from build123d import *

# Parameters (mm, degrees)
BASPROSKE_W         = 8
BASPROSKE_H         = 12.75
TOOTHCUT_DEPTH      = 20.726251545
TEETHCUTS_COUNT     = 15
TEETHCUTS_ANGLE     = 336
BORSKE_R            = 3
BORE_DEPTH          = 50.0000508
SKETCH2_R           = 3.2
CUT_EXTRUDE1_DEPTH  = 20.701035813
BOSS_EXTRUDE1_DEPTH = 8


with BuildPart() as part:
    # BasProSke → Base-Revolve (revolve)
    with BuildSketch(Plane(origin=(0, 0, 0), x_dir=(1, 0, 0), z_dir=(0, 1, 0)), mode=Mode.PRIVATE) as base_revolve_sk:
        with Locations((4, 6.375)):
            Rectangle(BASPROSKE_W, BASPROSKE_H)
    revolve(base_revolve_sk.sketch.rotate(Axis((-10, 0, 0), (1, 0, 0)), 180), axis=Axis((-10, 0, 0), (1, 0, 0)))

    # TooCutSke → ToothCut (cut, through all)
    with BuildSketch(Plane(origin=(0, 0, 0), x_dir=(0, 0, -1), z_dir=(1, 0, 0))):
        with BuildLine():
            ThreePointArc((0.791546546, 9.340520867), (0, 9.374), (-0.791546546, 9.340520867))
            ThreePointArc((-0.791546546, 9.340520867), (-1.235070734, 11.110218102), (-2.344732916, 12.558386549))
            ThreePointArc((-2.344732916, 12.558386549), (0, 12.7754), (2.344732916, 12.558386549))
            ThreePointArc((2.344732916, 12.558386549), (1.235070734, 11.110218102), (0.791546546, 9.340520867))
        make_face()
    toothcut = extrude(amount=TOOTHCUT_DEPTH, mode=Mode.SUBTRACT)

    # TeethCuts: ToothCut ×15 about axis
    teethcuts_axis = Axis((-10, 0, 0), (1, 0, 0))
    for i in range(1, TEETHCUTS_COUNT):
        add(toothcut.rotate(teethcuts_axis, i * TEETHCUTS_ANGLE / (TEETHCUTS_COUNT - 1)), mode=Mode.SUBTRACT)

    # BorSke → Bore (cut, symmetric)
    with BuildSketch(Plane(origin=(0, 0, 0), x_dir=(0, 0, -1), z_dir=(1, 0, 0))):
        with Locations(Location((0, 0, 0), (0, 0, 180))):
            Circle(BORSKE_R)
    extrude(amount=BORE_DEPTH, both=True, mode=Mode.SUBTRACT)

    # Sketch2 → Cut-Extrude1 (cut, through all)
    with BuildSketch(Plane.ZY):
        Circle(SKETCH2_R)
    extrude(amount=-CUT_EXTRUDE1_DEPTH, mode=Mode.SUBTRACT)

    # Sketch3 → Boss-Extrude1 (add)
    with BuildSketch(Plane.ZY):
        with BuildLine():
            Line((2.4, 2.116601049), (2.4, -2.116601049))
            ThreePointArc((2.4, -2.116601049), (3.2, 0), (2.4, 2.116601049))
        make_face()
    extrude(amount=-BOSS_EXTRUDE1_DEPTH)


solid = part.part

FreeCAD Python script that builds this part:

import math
import FreeCAD as App
import Part
import Sketcher

doc = App.newDocument("Part")
body = doc.addObject("PartDesign::Body", "Body")

# Sketch on XZ plane
sketch1 = body.newObject("Sketcher::SketchObject", "Sketch")
sketch1.AttachmentSupport = (doc.getObject("XZ_Plane"), [""])
sketch1.MapMode = "FlatFace"
sketch1.addGeometry([
    Part.LineSegment(App.Vector(0, -12.75, 0), App.Vector(0, 0, 0)),
    Part.LineSegment(App.Vector(0, 0, 0), App.Vector(8, 0, 0)),
    Part.LineSegment(App.Vector(8, 0, 0), App.Vector(8, -12.75, 0)),
    Part.LineSegment(App.Vector(8, -12.75, 0), App.Vector(0, -12.75, 0)),
], False)
sketch1.addConstraint([
    Sketcher.Constraint("Coincident", 0, 2, 1, 1),
    Sketcher.Constraint("Coincident", 1, 2, 2, 1),
    Sketcher.Constraint("Coincident", 2, 2, 3, 1),
    Sketcher.Constraint("Coincident", 3, 2, 0, 1),
    Sketcher.Constraint("Vertical", 0),
    Sketcher.Constraint("Horizontal", 1),
    Sketcher.Constraint("Vertical", 2),
    Sketcher.Constraint("Horizontal", 3),
    Sketcher.Constraint("Coincident", 0, 2, -1, 1),
    Sketcher.Constraint("DistanceX", 1, 1, 1, 2, 8.0),
    Sketcher.Constraint("DistanceY", 0, 1, 0, 2, 12.75),
])
revolution = body.newObject("PartDesign::Revolution", "Revolution")
revolution.Profile = sketch1
revolution.ReferenceAxis = (sketch1, ["H_Axis"])
revolution.Angle = 360

# Sketch on YZ plane
sketch2 = body.newObject("Sketcher::SketchObject", "Sketch001")
sketch2.AttachmentSupport = (doc.getObject("YZ_Plane"), [""])
sketch2.MapMode = "FlatFace"
sketch2.addGeometry([
    Part.ArcOfCircle(Part.Circle(App.Vector(0, 0, 0), App.Vector(0, 0, 1), 9.374), math.radians(-4.84386), math.radians(4.84386)),
    Part.ArcOfCircle(Part.Circle(App.Vector(9.154119, -5.287684, 0), App.Vector(0, 0, 1), 4.5), math.radians(40.843049), math.radians(87.625979)),
    Part.ArcOfCircle(Part.Circle(App.Vector(0, 0, 0), App.Vector(0, 0, 1), 12.7754), math.radians(-10.575731), math.radians(10.575731)),
    Part.ArcOfCircle(Part.Circle(App.Vector(9.154119, 5.287684, 0), App.Vector(0, 0, 1), 4.5), math.radians(-87.625979), math.radians(-40.843049)),
], False)
sketch2.addConstraint([
    Sketcher.Constraint("Coincident", 0, 1, 1, 2),
    Sketcher.Constraint("Coincident", 1, 1, 2, 1),
    Sketcher.Constraint("Coincident", 2, 2, 3, 2),
    Sketcher.Constraint("Coincident", 3, 1, 0, 2),
    Sketcher.Constraint("Coincident", 0, 3, -1, 1),
    Sketcher.Constraint("Coincident", 2, 3, -1, 1),
    Sketcher.Constraint("Equal", 1, 3),
    Sketcher.Constraint("Symmetric", 1, 3, 3, 3, -1),
    Sketcher.Constraint("Radius", 1, 4.5),
    Sketcher.Constraint("Radius", 0, 9.374),
    Sketcher.Constraint("Radius", 2, 12.7754),
    Sketcher.Constraint("DistanceX", 1, 3, 0, 1, 0.186402),
    Sketcher.Constraint("DistanceX", -1, 1, 1, 3, 9.154119),
])
pocket1 = body.newObject("PartDesign::Pocket", "Pocket")
pocket1.Profile = sketch2
pocket1.Type = "ThroughAll"
pocket1.Reversed = True
doc.recompute()

polarpattern = body.newObject("PartDesign::PolarPattern", "PolarPattern")
polarpattern.Originals = [pocket1]
polarpattern.Axis = (doc.getObject("X_Axis"), [""])
polarpattern.Angle = 360
polarpattern.Occurrences = 15
body.Tip = polarpattern

# Sketch on YZ plane
sketch3 = body.newObject("Sketcher::SketchObject", "Sketch002")
sketch3.AttachmentSupport = (doc.getObject("YZ_Plane"), [""])
sketch3.MapMode = "FlatFace"
sketch3.addGeometry(Part.Circle(App.Vector(0, 0, 0), App.Vector(0, 0, 1), 3), False)
sketch3.addConstraint([
    Sketcher.Constraint("Coincident", 0, 3, -1, 1),
    Sketcher.Constraint("Diameter", 0, 6.0),
])
pocket2 = body.newObject("PartDesign::Pocket", "Pocket001")
pocket2.Profile = sketch3
pocket2.Length = 100.000102
pocket2.Midplane = True

# Sketch on YZ plane
sketch4 = body.newObject("Sketcher::SketchObject", "Sketch003")
sketch4.AttachmentSupport = (doc.getObject("YZ_Plane"), [""])
sketch4.MapMode = "FlatFace"
sketch4.addGeometry(Part.Circle(App.Vector(0, 0, 0), App.Vector(0, 0, 1), 3.2), False)
sketch4.addConstraint([
    Sketcher.Constraint("Coincident", 0, 3, -1, 1),
    Sketcher.Constraint("Diameter", 0, 6.4),
])
pocket3 = body.newObject("PartDesign::Pocket", "Pocket002")
pocket3.Profile = sketch4
pocket3.Type = "ThroughAll"
pocket3.Reversed = True

# Sketch on YZ plane
sketch5 = body.newObject("Sketcher::SketchObject", "Sketch004")
sketch5.AttachmentSupport = (doc.getObject("YZ_Plane"), [""])
sketch5.MapMode = "FlatFace"
sketch5.addGeometry([
    Part.LineSegment(App.Vector(2.116601, 2.4, 0), App.Vector(-2.116601, 2.4, 0)),
    Part.ArcOfCircle(Part.Circle(App.Vector(0, 0, 0), App.Vector(0, 0, 1), 3.2), math.radians(48.590378), math.radians(131.409622)),
], False)
sketch5.addConstraint([
    Sketcher.Constraint("Coincident", 0, 1, 1, 1),
    Sketcher.Constraint("Coincident", 1, 2, 0, 2),
    Sketcher.Constraint("Horizontal", 0),
    Sketcher.Constraint("Coincident", 1, 3, -1, 1),
    Sketcher.Constraint("Radius", 1, 3.2),
    Sketcher.Constraint("DistanceY", -1, 1, 0, 1, 2.4),
])
pad1 = body.newObject("PartDesign::Pad", "Pad")
pad1.Profile = sketch5
pad1.Length = 8

doc.recompute()
